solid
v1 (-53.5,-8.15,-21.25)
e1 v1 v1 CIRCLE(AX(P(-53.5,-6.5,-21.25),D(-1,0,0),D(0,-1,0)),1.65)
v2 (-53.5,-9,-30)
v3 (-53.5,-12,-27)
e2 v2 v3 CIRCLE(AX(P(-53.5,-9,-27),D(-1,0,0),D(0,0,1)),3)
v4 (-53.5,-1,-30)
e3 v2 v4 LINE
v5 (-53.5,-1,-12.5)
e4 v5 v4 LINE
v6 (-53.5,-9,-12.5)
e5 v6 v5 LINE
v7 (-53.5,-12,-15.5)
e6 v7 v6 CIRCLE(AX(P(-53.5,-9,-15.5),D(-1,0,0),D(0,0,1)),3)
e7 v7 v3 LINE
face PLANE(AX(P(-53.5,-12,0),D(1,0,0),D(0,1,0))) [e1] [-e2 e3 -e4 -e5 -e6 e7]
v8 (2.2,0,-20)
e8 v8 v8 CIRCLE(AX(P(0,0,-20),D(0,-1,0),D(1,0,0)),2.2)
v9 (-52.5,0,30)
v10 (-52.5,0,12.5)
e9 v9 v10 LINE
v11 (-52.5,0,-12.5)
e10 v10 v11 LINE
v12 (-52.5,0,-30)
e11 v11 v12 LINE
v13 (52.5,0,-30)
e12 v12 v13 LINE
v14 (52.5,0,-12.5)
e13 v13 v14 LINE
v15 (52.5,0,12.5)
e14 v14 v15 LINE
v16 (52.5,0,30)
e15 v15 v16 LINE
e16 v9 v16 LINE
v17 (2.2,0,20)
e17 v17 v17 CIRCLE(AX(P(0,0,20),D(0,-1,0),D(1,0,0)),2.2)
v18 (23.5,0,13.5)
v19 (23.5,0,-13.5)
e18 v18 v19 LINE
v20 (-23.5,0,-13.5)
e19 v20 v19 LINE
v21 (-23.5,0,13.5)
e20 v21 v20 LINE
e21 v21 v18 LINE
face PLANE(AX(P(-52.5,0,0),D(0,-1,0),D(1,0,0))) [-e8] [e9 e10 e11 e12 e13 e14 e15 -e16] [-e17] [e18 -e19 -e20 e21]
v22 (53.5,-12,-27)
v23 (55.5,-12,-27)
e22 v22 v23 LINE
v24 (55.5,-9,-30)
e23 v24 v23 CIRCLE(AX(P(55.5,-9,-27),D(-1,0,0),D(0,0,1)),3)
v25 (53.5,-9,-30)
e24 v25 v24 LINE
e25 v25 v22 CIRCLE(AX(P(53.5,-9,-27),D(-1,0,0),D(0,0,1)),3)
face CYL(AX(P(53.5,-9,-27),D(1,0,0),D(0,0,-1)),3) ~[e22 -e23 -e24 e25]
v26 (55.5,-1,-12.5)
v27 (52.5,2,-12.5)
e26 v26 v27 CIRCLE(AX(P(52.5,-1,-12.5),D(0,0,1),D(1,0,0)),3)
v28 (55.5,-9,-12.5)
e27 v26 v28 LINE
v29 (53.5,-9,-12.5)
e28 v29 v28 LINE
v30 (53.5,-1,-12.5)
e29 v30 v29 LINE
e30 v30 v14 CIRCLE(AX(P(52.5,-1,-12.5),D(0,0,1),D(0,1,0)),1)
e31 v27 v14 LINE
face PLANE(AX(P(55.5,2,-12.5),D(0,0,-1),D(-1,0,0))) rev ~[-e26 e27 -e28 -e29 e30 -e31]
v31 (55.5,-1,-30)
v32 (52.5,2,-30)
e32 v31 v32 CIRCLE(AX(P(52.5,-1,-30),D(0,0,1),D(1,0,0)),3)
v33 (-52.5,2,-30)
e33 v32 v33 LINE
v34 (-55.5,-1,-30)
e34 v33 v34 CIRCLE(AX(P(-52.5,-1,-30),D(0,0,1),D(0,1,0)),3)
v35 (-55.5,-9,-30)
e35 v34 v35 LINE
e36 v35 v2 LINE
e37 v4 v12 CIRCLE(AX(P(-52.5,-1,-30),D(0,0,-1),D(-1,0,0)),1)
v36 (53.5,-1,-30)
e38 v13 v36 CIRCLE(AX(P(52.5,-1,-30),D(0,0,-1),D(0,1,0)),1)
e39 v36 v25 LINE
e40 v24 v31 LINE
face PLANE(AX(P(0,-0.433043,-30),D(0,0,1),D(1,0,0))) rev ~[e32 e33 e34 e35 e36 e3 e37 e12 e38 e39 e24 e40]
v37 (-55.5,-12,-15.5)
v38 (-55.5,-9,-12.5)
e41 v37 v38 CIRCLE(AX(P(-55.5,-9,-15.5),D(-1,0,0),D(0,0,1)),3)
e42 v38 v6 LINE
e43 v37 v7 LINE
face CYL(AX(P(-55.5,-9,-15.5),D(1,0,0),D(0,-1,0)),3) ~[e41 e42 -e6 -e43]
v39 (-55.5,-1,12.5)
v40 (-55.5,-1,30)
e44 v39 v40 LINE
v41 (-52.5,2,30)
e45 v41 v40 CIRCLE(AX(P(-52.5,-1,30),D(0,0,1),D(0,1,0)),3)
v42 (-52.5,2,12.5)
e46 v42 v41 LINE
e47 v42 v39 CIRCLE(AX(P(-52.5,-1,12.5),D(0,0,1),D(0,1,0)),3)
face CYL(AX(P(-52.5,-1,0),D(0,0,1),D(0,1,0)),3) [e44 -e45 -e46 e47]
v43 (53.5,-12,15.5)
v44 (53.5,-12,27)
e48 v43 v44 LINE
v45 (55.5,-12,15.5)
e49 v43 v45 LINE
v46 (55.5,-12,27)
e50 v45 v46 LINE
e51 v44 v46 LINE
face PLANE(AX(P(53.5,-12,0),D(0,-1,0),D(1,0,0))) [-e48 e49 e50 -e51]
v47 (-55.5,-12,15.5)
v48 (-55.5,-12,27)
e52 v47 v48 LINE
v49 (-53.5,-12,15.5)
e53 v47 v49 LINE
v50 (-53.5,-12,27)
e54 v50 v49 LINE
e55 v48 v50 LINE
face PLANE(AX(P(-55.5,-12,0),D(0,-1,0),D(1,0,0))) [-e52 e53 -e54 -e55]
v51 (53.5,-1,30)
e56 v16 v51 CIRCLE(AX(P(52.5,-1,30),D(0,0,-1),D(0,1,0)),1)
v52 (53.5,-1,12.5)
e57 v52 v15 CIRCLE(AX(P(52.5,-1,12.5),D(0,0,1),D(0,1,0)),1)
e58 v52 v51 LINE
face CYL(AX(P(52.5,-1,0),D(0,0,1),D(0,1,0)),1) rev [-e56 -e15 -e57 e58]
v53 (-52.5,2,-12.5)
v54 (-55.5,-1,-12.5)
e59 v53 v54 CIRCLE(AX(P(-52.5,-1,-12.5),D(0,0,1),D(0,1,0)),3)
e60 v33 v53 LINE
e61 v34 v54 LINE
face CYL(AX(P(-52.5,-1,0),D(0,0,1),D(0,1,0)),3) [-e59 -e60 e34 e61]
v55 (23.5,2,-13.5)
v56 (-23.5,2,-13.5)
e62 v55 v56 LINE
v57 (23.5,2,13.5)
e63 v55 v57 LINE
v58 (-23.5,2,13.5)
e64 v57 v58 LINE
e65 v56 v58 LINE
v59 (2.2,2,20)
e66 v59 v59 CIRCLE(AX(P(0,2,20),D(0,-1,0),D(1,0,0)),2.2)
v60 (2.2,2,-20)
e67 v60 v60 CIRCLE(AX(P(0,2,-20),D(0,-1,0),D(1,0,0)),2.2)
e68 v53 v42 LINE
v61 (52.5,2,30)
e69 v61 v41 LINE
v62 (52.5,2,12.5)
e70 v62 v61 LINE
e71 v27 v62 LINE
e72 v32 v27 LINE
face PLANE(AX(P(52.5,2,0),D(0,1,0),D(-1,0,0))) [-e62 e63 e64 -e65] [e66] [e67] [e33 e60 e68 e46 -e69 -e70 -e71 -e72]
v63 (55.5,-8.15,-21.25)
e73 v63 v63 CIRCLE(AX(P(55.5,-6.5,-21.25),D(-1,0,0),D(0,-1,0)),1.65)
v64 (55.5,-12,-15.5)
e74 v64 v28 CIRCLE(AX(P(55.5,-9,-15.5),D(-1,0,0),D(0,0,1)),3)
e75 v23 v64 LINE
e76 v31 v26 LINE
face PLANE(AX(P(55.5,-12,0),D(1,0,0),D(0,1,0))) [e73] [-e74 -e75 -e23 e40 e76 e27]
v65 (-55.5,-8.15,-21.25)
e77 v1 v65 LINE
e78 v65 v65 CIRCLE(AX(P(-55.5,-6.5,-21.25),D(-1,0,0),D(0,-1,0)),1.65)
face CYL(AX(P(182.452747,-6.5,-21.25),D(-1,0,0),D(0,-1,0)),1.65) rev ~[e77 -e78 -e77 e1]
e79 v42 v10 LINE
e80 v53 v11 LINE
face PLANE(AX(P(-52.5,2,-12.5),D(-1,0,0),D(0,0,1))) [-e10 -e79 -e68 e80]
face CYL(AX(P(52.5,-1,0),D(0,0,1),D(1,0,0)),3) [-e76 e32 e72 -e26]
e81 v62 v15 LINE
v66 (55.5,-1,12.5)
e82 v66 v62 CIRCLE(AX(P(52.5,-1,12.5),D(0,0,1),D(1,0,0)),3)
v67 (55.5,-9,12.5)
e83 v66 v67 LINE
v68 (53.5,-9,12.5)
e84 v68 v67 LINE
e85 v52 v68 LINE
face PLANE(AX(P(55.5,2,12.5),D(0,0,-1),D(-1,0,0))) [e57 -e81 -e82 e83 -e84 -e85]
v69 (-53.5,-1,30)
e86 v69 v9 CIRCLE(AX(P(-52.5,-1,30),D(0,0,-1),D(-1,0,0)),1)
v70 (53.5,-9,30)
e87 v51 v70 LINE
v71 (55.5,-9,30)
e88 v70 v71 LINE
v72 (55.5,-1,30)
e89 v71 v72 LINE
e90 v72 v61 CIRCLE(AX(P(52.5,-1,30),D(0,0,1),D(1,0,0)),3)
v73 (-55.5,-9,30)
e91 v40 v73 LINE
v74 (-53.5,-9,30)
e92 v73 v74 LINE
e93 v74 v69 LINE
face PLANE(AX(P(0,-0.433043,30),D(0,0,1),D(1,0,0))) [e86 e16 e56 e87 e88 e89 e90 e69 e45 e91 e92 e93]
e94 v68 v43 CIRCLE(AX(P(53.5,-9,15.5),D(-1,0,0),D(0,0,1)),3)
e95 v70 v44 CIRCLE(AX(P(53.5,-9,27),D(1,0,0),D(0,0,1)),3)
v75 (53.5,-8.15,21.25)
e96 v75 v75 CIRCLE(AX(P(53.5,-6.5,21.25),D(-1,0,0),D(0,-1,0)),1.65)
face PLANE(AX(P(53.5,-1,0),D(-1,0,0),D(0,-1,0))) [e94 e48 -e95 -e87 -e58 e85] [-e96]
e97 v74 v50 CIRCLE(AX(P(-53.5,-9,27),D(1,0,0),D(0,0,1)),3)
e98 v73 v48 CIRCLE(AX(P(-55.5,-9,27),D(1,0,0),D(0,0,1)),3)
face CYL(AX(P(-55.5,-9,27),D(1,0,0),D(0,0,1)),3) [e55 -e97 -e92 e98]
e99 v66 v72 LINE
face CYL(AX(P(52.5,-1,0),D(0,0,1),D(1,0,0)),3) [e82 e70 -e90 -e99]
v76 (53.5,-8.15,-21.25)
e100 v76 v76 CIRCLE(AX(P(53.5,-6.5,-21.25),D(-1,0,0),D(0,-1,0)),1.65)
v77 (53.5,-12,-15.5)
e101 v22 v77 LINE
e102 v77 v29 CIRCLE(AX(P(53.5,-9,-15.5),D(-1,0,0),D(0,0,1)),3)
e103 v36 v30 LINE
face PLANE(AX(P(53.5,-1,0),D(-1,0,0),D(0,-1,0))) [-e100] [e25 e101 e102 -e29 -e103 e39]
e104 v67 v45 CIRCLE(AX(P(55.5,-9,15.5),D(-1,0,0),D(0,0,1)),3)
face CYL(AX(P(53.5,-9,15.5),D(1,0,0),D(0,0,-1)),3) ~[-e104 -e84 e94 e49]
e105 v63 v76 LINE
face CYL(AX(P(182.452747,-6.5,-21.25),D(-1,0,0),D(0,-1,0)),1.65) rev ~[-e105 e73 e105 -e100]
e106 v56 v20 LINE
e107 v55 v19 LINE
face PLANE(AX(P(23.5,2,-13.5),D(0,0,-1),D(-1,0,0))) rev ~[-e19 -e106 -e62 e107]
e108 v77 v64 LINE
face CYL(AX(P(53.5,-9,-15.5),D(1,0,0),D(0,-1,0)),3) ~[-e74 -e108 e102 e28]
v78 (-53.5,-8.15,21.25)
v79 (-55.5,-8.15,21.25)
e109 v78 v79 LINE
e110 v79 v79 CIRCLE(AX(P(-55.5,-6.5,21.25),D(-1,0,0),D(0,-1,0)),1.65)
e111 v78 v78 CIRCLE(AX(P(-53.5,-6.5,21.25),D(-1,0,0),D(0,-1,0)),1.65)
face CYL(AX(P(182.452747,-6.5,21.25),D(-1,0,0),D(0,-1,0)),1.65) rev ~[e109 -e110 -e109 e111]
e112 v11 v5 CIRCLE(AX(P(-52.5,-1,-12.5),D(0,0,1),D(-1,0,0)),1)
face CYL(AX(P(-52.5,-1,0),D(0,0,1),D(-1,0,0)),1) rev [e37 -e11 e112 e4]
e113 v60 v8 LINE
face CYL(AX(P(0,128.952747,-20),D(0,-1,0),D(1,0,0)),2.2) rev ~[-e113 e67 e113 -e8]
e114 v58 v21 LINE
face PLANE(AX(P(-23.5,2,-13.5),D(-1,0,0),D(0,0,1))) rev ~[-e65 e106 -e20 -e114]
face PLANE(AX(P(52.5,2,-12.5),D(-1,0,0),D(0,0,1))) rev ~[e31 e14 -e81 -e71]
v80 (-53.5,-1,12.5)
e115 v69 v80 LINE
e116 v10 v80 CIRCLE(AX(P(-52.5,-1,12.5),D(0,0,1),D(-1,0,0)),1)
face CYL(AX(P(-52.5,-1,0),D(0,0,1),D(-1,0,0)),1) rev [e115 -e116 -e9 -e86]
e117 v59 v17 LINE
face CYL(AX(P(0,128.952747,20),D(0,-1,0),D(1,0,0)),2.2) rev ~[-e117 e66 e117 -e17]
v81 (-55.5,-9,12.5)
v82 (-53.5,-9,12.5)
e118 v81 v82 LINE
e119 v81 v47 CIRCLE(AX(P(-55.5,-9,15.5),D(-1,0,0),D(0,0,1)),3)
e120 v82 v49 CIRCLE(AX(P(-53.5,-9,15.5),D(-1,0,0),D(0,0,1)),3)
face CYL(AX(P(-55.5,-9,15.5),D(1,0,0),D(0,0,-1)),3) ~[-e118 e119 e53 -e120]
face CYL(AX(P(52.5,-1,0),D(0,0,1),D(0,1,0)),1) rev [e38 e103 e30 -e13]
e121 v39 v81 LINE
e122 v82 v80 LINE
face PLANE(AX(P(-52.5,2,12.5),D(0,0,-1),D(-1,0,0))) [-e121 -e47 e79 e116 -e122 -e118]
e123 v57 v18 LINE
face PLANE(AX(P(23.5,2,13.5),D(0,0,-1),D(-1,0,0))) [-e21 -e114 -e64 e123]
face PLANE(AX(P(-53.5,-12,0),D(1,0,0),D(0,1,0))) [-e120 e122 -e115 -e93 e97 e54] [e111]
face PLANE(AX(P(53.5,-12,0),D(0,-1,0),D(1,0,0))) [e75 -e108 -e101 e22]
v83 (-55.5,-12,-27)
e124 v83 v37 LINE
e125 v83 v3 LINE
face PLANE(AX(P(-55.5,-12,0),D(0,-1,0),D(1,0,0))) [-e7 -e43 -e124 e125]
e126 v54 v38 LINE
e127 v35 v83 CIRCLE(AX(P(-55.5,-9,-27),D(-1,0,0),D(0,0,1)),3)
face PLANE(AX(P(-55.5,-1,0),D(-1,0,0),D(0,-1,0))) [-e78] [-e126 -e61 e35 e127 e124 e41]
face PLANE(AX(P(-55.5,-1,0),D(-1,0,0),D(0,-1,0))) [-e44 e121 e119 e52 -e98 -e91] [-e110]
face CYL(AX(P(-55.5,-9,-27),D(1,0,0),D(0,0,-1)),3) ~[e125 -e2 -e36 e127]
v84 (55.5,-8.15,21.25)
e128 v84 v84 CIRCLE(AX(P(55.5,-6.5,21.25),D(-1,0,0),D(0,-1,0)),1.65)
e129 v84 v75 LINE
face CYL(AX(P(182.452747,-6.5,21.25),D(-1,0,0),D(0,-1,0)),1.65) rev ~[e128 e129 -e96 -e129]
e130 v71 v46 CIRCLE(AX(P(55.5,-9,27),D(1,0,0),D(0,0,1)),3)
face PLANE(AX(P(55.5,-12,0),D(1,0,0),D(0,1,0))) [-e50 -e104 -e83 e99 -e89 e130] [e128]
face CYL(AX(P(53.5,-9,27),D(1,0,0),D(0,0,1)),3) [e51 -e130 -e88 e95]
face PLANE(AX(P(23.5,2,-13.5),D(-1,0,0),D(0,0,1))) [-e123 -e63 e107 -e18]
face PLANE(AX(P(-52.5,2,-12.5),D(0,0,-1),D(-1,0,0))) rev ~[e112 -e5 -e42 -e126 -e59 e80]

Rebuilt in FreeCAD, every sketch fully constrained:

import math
import FreeCAD as App
import Part
import Sketcher

V = App.Vector


def edges_at(feature, points):
    """Names of the edges that pass closest to the given points."""
    edges = feature.Shape.Edges
    near = lambda p: min(range(len(edges)), key=lambda i: edges[i].distToShape(Part.Vertex(*p))[0])
    return sorted({f"Edge{near(p) + 1}" for p in points})

doc = App.newDocument("Part")
body = doc.addObject("PartDesign::Body", "Body")

sketch1 = body.newObject("Sketcher::SketchObject", "Sketch")
sketch1.AttachmentSupport = (doc.getObject("XY_Plane"), [""])
sketch1.MapMode = "FlatFace"
sketch1.addGeometry([
    Part.LineSegment(V(-52.5, 0, 0), V(52.5, 0, 0)),
    Part.ArcOfCircle(Part.Circle(V(52.5, -1, 0), V(0, 0, 1), 1), math.radians(0), math.radians(90)),
    Part.LineSegment(V(53.5, -1, 0), V(53.5, -12, 0)),
    Part.LineSegment(V(53.5, -12, 0), V(55.5, -12, 0)),
    Part.LineSegment(V(55.5, -12, 0), V(55.5, -1, 0)),
    Part.ArcOfCircle(Part.Circle(V(52.5, -1, 0), V(0, 0, 1), 3), math.radians(0), math.radians(90)),
    Part.LineSegment(V(52.5, 2, 0), V(-52.5, 2, 0)),
    Part.ArcOfCircle(Part.Circle(V(-52.5, -1, 0), V(0, 0, 1), 3), math.radians(90), math.radians(180)),
    Part.LineSegment(V(-55.5, -1, 0), V(-55.5, -12, 0)),
    Part.LineSegment(V(-55.5, -12, 0), V(-53.5, -12, 0)),
    Part.LineSegment(V(-53.5, -12, 0), V(-53.5, -1, 0)),
    Part.ArcOfCircle(Part.Circle(V(-52.5, -1, 0), V(0, 0, 1), 1), math.radians(90), math.radians(180)),
], False)
sketch1.addConstraint([
    Sketcher.Constraint("Tangent", 0, 2, 1, 2),
    Sketcher.Constraint("Tangent", 1, 1, 2, 1),
    Sketcher.Constraint("Coincident", 2, 2, 3, 1),
    Sketcher.Constraint("Coincident", 3, 2, 4, 1),
    Sketcher.Constraint("Tangent", 4, 2, 5, 1),
    Sketcher.Constraint("Tangent", 5, 2, 6, 1),
    Sketcher.Constraint("Tangent", 6, 2, 7, 1),
    Sketcher.Constraint("Tangent", 7, 2, 8, 1),
    Sketcher.Constraint("Coincident", 8, 2, 9, 1),
    Sketcher.Constraint("Coincident", 9, 2, 10, 1),
    Sketcher.Constraint("Tangent", 10, 2, 11, 2),
    Sketcher.Constraint("Tangent", 11, 1, 0, 1),
    Sketcher.Constraint("Horizontal", 0),
    Sketcher.Constraint("Vertical", 2),
    Sketcher.Constraint("Horizontal", 3),
    Sketcher.Constraint("Vertical", 4),
    Sketcher.Constraint("Horizontal", 6),
    Sketcher.Constraint("Vertical", 8),
    Sketcher.Constraint("Horizontal", 9),
    Sketcher.Constraint("Vertical", 10),
    Sketcher.Constraint("Coincident", 5, 3, 1, 3),
    Sketcher.Constraint("Coincident", 11, 3, 7, 3),
    Sketcher.Constraint("Equal", 5, 7),
    Sketcher.Constraint("Symmetric", 0, 2, 11, 1, -1, 1),
    Sketcher.Constraint("Horizontal", 3, 2, 8, 2),
    Sketcher.Constraint("Radius", 1, 1.0),
    Sketcher.Constraint("Radius", 5, 3.0),
    Sketcher.Constraint("DistanceX", 0, 1, 0, 2, 105.0),
    Sketcher.Constraint("DistanceY", 2, 2, 2, 1, 11.0),
])
pad1 = body.newObject("PartDesign::Pad", "Pad")
pad1.Profile = sketch1
pad1.Length = 60
pad1.Midplane = True

sketch2 = body.newObject("Sketcher::SketchObject", "Sketch001")
sketch2.AttachmentSupport = (doc.getObject("XZ_Plane"), [""])
sketch2.MapMode = "FlatFace"
sketch2.AttachmentOffset = App.Placement(V(0, 0, -2), App.Rotation())
sketch2.addGeometry([
    Part.LineSegment(V(55.5, 12.5, 0), V(55.5, -12.5, 0)),
    Part.LineSegment(V(55.5, -12.5, 0), V(52.5, -12.5, 0)),
    Part.LineSegment(V(52.5, -12.5, 0), V(52.5, 12.5, 0)),
    Part.LineSegment(V(52.5, 12.5, 0), V(55.5, 12.5, 0)),
    Part.LineSegment(V(-52.5, 12.5, 0), V(-52.5, -12.5, 0)),
    Part.LineSegment(V(-52.5, -12.5, 0), V(-55.5, -12.5, 0)),
    Part.LineSegment(V(-55.5, -12.5, 0), V(-55.5, 12.5, 0)),
    Part.LineSegment(V(-55.5, 12.5, 0), V(-52.5, 12.5, 0)),
    Part.LineSegment(V(23.5, 13.5, 0), V(23.5, -13.5, 0)),
    Part.LineSegment(V(23.5, -13.5, 0), V(-23.5, -13.5, 0)),
    Part.LineSegment(V(-23.5, -13.5, 0), V(-23.5, 13.5, 0)),
    Part.LineSegment(V(-23.5, 13.5, 0), V(23.5, 13.5, 0)),
], False)
sketch2.addConstraint([
    Sketcher.Constraint("Coincident", 0, 2, 1, 1),
    Sketcher.Constraint("Coincident", 1, 2, 2, 1),
    Sketcher.Constraint("Coincident", 2, 2, 3, 1),
    Sketcher.Constraint("Coincident", 3, 2, 0, 1),
    Sketcher.Constraint("Coincident", 4, 2, 5, 1),
    Sketcher.Constraint("Coincident", 5, 2, 6, 1),
    Sketcher.Constraint("Coincident", 6, 2, 7, 1),
    Sketcher.Constraint("Coincident", 7, 2, 4, 1),
    Sketcher.Constraint("Coincident", 8, 2, 9, 1),
    Sketcher.Constraint("Coincident", 9, 2, 10, 1),
    Sketcher.Constraint("Coincident", 10, 2, 11, 1),
    Sketcher.Constraint("Coincident", 11, 2, 8, 1),
    Sketcher.Constraint("Vertical", 0),
    Sketcher.Constraint("Horizontal", 1),
    Sketcher.Constraint("Vertical", 2),
    Sketcher.Constraint("Horizontal", 3),
    Sketcher.Constraint("Vertical", 4),
    Sketcher.Constraint("Horizontal", 5),
    Sketcher.Constraint("Vertical", 6),
    Sketcher.Constraint("Horizontal", 7),
    Sketcher.Constraint("Vertical", 8),
    Sketcher.Constraint("Horizontal", 9),
    Sketcher.Constraint("Vertical", 10),
    Sketcher.Constraint("Horizontal", 11),
    Sketcher.Constraint("Symmetric", 2, 2, 4, 2, -1, 1),
    Sketcher.Constraint("Symmetric", 0, 2, 6, 2, -1, 1),
    Sketcher.Constraint("Symmetric", 8, 2, 10, 2, -1, 1),
    Sketcher.Constraint("Horizontal", 1, 2, 4, 2),
    Sketcher.Constraint("DistanceX", 1, 2, 1, 1, 3.0),
    Sketcher.Constraint("DistanceX", 9, 2, 9, 1, 47.0),
    Sketcher.Constraint("DistanceY", 0, 2, 0, 1, 25.0),
    Sketcher.Constraint("DistanceY", 8, 2, 8, 1, 27.0),
    Sketcher.Constraint("DistanceX", 4, 2, 1, 2, 105.0),
])
pocket1 = body.newObject("PartDesign::Pocket", "Pocket")
pocket1.Profile = sketch2
pocket1.Type = "ThroughAll"
pocket1.Reversed = True

sketch3 = body.newObject("Sketcher::SketchObject", "Sketch002")
sketch3.AttachmentSupport = (doc.getObject("XZ_Plane"), [""])
sketch3.MapMode = "FlatFace"
sketch3.AttachmentOffset = App.Placement(V(0, 0, -2), App.Rotation())
sketch3.addGeometry([
    Part.Circle(V(0, 20, 0), V(0, 0, 1), 2.2),
    Part.Circle(V(0, -20, 0), V(0, 0, 1), 2.2),
], False)
sketch3.addConstraint([
    Sketcher.Constraint("Equal", 0, 1),
    Sketcher.Constraint("Symmetric", 0, 3, 1, 3, -1, 1),
    Sketcher.Constraint("PointOnObject", 0, 3, -2),
    Sketcher.Constraint("Diameter", 0, 4.4),
    Sketcher.Constraint("DistanceY", -1, 1, 0, 3, 20.0),
])
doc.recompute()
hole = body.newObject("PartDesign::Hole", "Hole")
hole.Profile = sketch3
hole.ThreadType = "None"
hole.Diameter = 4.4
hole.DepthType = "ThroughAll"
hole.Reversed = True

sketch4 = body.newObject("Sketcher::SketchObject", "Sketch003")
sketch4.AttachmentSupport = (doc.getObject("YZ_Plane"), [""])
sketch4.MapMode = "FlatFace"
sketch4.AttachmentOffset = App.Placement(V(0, 0, 55.5), App.Rotation())
sketch4.addGeometry([
    Part.Circle(V(-6.5, 21.2, 0), V(0, 0, 1), 1.6),
    Part.Circle(V(-6.5, -21.2, 0), V(0, 0, 1), 1.6),
], False)
sketch4.addConstraint([
    Sketcher.Constraint("Equal", 0, 1),
    Sketcher.Constraint("Symmetric", 0, 3, 1, 3, -1),
    Sketcher.Constraint("Diameter", 0, 3.3),
    Sketcher.Constraint("DistanceX", 0, 3, -1, 1, 6.5),
    Sketcher.Constraint("DistanceY", 1, 3, 0, 3, 42.5),
])
doc.recompute()
hole2 = body.newObject("PartDesign::Hole", "Hole001")
hole2.Profile = sketch4
hole2.ThreadType = "None"
hole2.Diameter = 3.3
hole2.DepthType = "ThroughAll"
doc.recompute()

fillet = body.newObject("PartDesign::Fillet", "Fillet")
fillet.Base = (hole2, edges_at(hole2, [
    (-54.5, -12, 30),
    (-54.5, -12, 12.5),
    (-54.5, -12, -12.5),
    (-54.5, -12, -30),
    (54.5, -12, 30),
    (54.5, -12, 12.5),
    (54.5, -12, -12.5),
    (54.5, -12, -30),
]))
fillet.Radius = 3

doc.recompute()
